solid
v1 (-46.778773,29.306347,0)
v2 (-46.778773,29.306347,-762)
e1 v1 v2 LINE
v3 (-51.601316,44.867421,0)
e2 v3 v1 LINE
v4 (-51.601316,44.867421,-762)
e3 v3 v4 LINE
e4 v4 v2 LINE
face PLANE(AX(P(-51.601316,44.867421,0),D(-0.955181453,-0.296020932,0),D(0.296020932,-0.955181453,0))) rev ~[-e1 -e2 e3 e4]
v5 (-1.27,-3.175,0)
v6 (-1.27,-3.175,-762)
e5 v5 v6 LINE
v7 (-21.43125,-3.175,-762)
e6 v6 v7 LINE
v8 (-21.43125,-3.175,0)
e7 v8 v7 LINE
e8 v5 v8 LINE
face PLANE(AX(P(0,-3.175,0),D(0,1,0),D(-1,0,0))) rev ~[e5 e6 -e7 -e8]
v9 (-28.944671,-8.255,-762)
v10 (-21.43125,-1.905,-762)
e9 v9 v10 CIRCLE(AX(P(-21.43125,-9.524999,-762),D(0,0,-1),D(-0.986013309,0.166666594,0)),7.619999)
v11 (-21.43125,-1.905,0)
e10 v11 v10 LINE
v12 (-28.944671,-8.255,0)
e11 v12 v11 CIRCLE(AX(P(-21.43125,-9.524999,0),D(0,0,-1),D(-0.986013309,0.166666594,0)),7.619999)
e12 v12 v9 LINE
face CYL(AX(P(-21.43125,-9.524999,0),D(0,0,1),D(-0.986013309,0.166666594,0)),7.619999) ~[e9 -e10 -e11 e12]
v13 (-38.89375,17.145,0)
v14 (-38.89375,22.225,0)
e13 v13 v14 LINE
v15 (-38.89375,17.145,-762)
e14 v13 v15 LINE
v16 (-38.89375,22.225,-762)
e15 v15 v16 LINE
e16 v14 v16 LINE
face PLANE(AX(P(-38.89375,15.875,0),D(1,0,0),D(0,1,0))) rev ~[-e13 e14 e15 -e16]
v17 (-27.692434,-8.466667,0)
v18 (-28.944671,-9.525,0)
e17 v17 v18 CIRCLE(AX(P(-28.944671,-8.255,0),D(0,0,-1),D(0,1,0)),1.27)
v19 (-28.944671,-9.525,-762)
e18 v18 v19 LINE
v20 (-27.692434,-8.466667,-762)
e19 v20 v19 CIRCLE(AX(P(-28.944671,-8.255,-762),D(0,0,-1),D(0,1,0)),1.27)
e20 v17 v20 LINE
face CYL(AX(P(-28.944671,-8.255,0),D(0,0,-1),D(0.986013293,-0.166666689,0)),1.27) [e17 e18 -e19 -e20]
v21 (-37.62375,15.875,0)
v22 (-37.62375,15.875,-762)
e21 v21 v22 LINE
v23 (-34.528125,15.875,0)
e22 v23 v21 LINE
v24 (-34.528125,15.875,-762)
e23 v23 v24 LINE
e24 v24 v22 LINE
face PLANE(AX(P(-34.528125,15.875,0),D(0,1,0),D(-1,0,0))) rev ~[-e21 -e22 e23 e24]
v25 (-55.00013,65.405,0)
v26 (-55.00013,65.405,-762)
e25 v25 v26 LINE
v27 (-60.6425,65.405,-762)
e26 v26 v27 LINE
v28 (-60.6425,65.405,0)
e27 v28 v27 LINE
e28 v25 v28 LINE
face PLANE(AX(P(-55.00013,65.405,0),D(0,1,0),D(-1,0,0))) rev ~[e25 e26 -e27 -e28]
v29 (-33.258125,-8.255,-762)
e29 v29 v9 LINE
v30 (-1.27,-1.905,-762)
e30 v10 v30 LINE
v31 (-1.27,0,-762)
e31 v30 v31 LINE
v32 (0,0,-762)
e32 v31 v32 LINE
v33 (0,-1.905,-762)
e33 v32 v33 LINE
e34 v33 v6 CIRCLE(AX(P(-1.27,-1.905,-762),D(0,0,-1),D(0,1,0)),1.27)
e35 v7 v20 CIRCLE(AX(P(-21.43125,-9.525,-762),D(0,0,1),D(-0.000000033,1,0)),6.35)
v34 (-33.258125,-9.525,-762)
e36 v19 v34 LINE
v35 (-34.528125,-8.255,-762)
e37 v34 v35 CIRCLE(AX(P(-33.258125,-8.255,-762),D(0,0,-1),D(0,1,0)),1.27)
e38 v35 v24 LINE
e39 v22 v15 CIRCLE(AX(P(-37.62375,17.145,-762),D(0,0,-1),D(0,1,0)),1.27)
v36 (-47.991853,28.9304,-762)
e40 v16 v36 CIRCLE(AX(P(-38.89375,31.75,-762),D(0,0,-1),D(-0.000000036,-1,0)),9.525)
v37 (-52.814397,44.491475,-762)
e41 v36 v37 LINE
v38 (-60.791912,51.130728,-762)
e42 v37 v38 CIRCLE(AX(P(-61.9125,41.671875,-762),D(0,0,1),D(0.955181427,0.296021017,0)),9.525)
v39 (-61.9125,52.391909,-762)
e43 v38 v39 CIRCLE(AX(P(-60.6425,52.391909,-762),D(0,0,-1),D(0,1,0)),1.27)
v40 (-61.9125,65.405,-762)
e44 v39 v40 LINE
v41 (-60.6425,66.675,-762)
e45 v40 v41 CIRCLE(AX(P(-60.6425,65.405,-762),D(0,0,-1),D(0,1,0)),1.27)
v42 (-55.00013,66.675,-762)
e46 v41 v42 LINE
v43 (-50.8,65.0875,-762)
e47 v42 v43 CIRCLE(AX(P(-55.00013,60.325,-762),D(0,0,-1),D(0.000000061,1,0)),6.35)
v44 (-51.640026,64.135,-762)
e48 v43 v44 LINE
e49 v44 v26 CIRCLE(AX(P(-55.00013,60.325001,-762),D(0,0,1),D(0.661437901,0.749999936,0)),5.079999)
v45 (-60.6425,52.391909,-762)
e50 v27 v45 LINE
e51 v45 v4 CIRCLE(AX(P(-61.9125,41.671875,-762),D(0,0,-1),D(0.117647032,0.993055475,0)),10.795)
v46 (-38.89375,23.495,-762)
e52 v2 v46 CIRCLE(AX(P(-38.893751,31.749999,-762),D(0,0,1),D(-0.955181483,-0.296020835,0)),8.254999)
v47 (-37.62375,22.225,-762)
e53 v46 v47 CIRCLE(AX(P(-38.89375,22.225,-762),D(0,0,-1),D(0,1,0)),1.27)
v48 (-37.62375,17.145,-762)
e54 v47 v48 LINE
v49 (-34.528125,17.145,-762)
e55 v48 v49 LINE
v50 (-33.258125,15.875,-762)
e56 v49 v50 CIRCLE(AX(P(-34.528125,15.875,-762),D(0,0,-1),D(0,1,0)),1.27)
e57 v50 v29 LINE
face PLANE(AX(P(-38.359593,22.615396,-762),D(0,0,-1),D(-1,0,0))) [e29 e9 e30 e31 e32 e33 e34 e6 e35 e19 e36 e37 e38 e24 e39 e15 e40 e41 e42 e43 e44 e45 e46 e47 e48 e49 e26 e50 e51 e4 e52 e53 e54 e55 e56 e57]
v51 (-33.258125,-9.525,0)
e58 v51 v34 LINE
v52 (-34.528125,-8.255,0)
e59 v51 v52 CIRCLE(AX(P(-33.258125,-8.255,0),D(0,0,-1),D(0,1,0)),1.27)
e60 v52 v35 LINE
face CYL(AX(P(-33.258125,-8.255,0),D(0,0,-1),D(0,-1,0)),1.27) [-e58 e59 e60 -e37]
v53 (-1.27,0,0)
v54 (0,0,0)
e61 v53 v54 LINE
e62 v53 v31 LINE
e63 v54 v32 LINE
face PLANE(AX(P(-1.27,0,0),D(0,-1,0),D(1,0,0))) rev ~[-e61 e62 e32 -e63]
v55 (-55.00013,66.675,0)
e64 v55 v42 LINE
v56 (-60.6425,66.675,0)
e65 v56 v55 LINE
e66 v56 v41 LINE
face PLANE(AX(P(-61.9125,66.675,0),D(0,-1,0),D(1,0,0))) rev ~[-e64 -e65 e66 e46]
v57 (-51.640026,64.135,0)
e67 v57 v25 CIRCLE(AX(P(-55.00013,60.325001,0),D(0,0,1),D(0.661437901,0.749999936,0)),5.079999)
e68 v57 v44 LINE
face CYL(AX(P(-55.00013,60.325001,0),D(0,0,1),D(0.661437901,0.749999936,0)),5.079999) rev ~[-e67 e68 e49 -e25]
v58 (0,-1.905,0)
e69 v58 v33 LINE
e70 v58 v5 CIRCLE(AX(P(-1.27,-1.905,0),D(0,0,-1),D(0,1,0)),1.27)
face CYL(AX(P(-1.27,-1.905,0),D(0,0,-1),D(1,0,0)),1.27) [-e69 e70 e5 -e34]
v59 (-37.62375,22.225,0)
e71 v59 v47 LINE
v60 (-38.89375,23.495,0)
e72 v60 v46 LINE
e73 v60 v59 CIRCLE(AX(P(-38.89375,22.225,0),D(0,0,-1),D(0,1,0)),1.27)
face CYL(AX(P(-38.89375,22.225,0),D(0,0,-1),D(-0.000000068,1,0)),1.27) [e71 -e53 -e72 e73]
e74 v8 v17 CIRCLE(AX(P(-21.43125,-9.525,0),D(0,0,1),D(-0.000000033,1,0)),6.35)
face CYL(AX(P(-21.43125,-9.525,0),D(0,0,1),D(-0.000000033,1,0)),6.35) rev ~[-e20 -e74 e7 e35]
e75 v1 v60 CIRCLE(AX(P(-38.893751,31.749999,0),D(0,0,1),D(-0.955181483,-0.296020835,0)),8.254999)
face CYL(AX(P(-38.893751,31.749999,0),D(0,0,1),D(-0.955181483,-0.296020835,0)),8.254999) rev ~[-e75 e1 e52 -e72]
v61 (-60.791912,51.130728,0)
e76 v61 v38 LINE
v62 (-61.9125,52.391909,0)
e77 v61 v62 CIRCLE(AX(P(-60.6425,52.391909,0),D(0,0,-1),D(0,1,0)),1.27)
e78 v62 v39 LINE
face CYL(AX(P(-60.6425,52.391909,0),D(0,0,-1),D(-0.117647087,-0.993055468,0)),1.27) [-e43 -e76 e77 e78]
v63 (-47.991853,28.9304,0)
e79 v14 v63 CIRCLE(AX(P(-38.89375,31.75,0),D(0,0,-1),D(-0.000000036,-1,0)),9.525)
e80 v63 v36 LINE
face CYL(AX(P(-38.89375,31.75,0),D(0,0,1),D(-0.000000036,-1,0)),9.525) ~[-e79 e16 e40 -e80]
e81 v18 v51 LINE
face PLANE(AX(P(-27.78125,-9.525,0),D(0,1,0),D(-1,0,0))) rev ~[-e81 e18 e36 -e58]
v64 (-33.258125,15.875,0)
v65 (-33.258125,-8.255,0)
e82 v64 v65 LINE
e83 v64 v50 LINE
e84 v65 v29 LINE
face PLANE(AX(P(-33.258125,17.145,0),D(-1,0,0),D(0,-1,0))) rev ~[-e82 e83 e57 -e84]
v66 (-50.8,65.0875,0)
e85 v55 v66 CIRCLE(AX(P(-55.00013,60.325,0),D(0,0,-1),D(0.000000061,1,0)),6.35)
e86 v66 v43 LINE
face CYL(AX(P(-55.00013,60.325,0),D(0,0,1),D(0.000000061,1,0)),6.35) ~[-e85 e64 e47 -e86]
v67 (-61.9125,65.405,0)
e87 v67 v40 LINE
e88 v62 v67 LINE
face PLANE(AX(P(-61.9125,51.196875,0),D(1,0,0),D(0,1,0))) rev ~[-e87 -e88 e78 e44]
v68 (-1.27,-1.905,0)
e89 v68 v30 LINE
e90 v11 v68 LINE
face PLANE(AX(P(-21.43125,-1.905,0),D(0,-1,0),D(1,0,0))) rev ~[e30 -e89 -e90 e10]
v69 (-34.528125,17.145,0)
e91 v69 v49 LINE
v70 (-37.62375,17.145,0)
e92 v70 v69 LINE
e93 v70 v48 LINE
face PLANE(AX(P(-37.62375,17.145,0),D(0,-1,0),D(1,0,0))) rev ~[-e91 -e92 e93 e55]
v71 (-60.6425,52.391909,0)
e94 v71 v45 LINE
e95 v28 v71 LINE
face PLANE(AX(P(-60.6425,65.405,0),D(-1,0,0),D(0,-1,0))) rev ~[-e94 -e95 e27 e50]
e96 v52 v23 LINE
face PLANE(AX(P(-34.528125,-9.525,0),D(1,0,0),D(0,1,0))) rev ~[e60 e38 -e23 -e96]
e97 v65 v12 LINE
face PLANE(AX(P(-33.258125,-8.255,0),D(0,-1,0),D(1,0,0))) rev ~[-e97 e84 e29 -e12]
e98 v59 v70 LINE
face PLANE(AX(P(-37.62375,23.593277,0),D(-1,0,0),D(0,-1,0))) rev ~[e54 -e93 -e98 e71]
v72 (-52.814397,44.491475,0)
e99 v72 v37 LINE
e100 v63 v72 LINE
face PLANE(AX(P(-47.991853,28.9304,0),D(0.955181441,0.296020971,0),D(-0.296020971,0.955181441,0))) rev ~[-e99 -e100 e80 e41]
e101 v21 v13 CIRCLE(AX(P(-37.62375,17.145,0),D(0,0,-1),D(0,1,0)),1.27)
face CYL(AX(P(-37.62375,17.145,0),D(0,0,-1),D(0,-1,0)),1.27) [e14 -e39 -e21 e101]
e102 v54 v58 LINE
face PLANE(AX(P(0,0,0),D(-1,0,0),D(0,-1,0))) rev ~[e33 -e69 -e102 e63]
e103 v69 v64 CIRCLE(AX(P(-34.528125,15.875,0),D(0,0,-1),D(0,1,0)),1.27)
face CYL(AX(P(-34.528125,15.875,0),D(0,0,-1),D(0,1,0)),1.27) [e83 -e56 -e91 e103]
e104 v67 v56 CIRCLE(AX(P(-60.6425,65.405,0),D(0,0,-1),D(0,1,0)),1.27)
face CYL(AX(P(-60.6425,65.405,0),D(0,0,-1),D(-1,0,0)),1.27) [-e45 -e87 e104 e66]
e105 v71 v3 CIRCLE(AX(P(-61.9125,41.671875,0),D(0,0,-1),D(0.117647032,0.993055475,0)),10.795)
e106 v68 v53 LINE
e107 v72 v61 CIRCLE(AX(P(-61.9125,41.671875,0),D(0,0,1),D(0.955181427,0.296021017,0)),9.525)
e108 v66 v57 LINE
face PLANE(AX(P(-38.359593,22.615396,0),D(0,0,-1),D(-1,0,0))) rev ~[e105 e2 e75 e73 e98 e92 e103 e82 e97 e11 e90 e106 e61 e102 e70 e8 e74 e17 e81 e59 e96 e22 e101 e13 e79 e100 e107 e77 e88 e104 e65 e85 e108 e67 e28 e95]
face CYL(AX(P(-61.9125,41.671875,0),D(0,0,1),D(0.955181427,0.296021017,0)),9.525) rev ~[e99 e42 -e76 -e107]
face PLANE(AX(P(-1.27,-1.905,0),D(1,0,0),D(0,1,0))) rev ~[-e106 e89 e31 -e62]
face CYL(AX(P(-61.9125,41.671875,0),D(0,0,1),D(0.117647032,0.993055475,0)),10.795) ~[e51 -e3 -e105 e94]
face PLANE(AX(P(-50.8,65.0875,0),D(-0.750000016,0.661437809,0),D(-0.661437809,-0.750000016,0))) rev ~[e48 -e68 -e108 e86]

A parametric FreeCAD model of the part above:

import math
import FreeCAD as App
import Part
import Sketcher

V = App.Vector
Q = App.Units.Quantity


def edges_at(feature, points):
    """Names of the edges that pass closest to the given points."""
    edges = feature.Shape.Edges
    near = lambda p: min(range(len(edges)), key=lambda i: edges[i].distToShape(Part.Vertex(*p))[0])
    return sorted({f"Edge{near(p) + 1}" for p in points})

doc = App.newDocument("Part")
body = doc.addObject("PartDesign::Body", "Body")

# Sketch on XY plane
sketch1 = doc.addObject("Sketcher::SketchObject", "Sketch")
body.addObject(sketch1)
sketch1.AttachmentSupport = (doc.XY_Plane, [""])
sketch1.MapMode = "FlatFace"
sketch1.addGeometry([
    Part.LineSegment(V(0, -3.175, 0), V(0, 0, 0)),  # 0
    Part.LineSegment(V(0, 0, 0), V(-1.27, 0, 0)),  # 1
    Part.LineSegment(V(-1.27, 0, 0), V(-1.27, -1.905, 0)),  # 2
    Part.LineSegment(V(-1.27, -1.905, 0), V(-21.43125, -1.905, 0)),  # 3
    Part.ArcOfCircle(Part.Circle(V(-21.43125, -9.524999, 0), V(0, 0, 1), 7.619999), math.radians(89.999998), math.radians(170.405936)),  # 4
    Part.LineSegment(V(-28.944671, -8.255, 0), V(-33.258125, -8.255, 0)),  # 5
    Part.LineSegment(V(-33.258125, -8.255, 0), V(-33.258125, 17.145, 0)),  # 6
    Part.LineSegment(V(-33.258125, 17.145, 0), V(-37.62375, 17.145, 0)),  # 7
    Part.LineSegment(V(-37.62375, 17.145, 0), V(-37.62375, 23.593277, 0)),  # 8
    Part.ArcOfCircle(Part.Circle(V(-38.893751, 31.749999, 0), V(0, 0, 1), 8.254999), math.radians(-162.781239), math.radians(-81.150111)),  # 9
    Part.LineSegment(V(-46.778773, 29.306347, 0), V(-51.601316, 44.867421, 0)),  # 10
    Part.ArcOfCircle(Part.Circle(V(-61.9125, 41.671875, 0), V(0, 0, 1), 10.795), math.radians(17.218766), math.radians(83.243675)),  # 11
    Part.LineSegment(V(-60.6425, 52.391909, 0), V(-60.6425, 65.405, 0)),  # 12
    Part.LineSegment(V(-60.6425, 65.405, 0), V(-55.00013, 65.405, 0)),  # 13
    Part.ArcOfCircle(Part.Circle(V(-55.00013, 60.325001, 0), V(0, 0, 1), 5.079999), math.radians(48.590372), math.radians(90.000004)),  # 14
    Part.LineSegment(V(-51.640026, 64.135, 0), V(-50.8, 65.0875, 0)),  # 15
    Part.ArcOfCircle(Part.Circle(V(-55.00013, 60.325, 0), V(0, 0, 1), 6.35), math.radians(48.59038), math.radians(89.999997)),  # 16
    Part.LineSegment(V(-55.00013, 66.675, 0), V(-61.9125, 66.675, 0)),  # 17
    Part.LineSegment(V(-61.9125, 66.675, 0), V(-61.9125, 51.196875, 0)),  # 18
    Part.ArcOfCircle(Part.Circle(V(-61.9125, 41.671875, 0), V(0, 0, 1), 9.525), math.radians(17.218772), math.radians(89.999998)),  # 19
    Part.LineSegment(V(-52.814397, 44.491475, 0), V(-47.991853, 28.9304, 0)),  # 20
    Part.ArcOfCircle(Part.Circle(V(-38.89375, 31.75, 0), V(0, 0, 1), 9.525), math.radians(-162.781228), math.radians(-90.000002)),  # 21
    Part.LineSegment(V(-38.89375, 22.225, 0), V(-38.89375, 15.875, 0)),  # 22
    Part.LineSegment(V(-38.89375, 15.875, 0), V(-34.528125, 15.875, 0)),  # 23
    Part.LineSegment(V(-34.528125, 15.875, 0), V(-34.528125, -9.525, 0)),  # 24
    Part.LineSegment(V(-34.528125, -9.525, 0), V(-27.78125, -9.525, 0)),  # 25
    Part.ArcOfCircle(Part.Circle(V(-21.43125, -9.525, 0), V(0, 0, 1), 6.35), math.radians(90.000002), math.radians(179.999998)),  # 26
    Part.LineSegment(V(-21.43125, -3.175, 0), V(0, -3.175, 0)),  # 27
], False)
sketch1.addConstraint([
    Sketcher.Constraint("Coincident", 0, 2, 1, 1),
    Sketcher.Constraint("Coincident", 1, 2, 2, 1),
    Sketcher.Constraint("Coincident", 2, 2, 3, 1),
    Sketcher.Constraint("Tangent", 3, 2, 4, 1),
    Sketcher.Constraint("Coincident", 4, 2, 5, 1),
    Sketcher.Constraint("Coincident", 5, 2, 6, 1),
    Sketcher.Constraint("Coincident", 6, 2, 7, 1),
    Sketcher.Constraint("Coincident", 7, 2, 8, 1),
    Sketcher.Constraint("Coincident", 8, 2, 9, 2),
    Sketcher.Constraint("Tangent", 9, 1, 10, 1),
    Sketcher.Constraint("Tangent", 10, 2, 11, 1),
    Sketcher.Constraint("Coincident", 11, 2, 12, 1),
    Sketcher.Constraint("Coincident", 12, 2, 13, 1),
    Sketcher.Constraint("Tangent", 13, 2, 14, 2),
    Sketcher.Constraint("Coincident", 14, 1, 15, 1),
    Sketcher.Constraint("Coincident", 15, 2, 16, 1),
    Sketcher.Constraint("Tangent", 16, 2, 17, 1),
    Sketcher.Constraint("Coincident", 17, 2, 18, 1),
    Sketcher.Constraint("Coincident", 18, 2, 19, 2),
    Sketcher.Constraint("Tangent", 19, 1, 20, 1),
    Sketcher.Constraint("Tangent", 20, 2, 21, 1),
    Sketcher.Constraint("Coincident", 21, 2, 22, 1),
    Sketcher.Constraint("Coincident", 22, 2, 23, 1),
    Sketcher.Constraint("Coincident", 23, 2, 24, 1),
    Sketcher.Constraint("Coincident", 24, 2, 25, 1),
    Sketcher.Constraint("Coincident", 25, 2, 26, 2),
    Sketcher.Constraint("Tangent", 26, 1, 27, 1),
    Sketcher.Constraint("Coincident", 27, 2, 0, 1),
    Sketcher.Constraint("Vertical", 0),
    Sketcher.Constraint("Horizontal", 1),
    Sketcher.Constraint("Vertical", 2),
    Sketcher.Constraint("Horizontal", 3),
    Sketcher.Constraint("Horizontal", 5),
    Sketcher.Constraint("Vertical", 6),
    Sketcher.Constraint("Horizontal", 7),
    Sketcher.Constraint("Vertical", 8),
    Sketcher.Constraint("Vertical", 12),
    Sketcher.Constraint("Horizontal", 13),
    Sketcher.Constraint("Horizontal", 17),
    Sketcher.Constraint("Vertical", 18),
    Sketcher.Constraint("Vertical", 22),
    Sketcher.Constraint("Horizontal", 23),
    Sketcher.Constraint("Vertical", 24),
    Sketcher.Constraint("Horizontal", 25),
    Sketcher.Constraint("Horizontal", 27),
    Sketcher.Constraint("Coincident", 0, 2, -1, 1),
    Sketcher.Constraint("Coincident", 16, 3, 14, 3),
    Sketcher.Constraint("Coincident", 19, 3, 11, 3),
    Sketcher.Constraint("Coincident", 21, 3, 9, 3),
    Sketcher.Constraint("Coincident", 26, 3, 4, 3),
    Sketcher.Constraint("Equal", 19, 21),
    Sketcher.Constraint("Equal", 16, 26),
    Sketcher.Constraint("Parallel", 10, 20),
    Sketcher.Constraint("Horizontal", 26, 3, 24, 2),
    Sketcher.Constraint("Vertical", 19, 3, 17, 2),
    Sketcher.Constraint("Vertical", 9, 3, 21, 2),
    Sketcher.Constraint("Equal", 7, 23),
    Sketcher.Constraint("Equal", 6, 24),
    Sketcher.Constraint("Radius", 4, Q("0.3 in")),
    Sketcher.Constraint("Radius", 14, Q("0.1999999 in")),
    Sketcher.Constraint("DistanceY", 6, 1, 6, 2, Q("1 in")),
    Sketcher.Constraint("Radius", 16, Q("0.25 in")),
    Sketcher.Constraint("DistanceX", 15, 2, -1, 1, Q("2 in")),
    Sketcher.Constraint("Radius", 9, Q("0.325 in")),
    Sketcher.Constraint("Radius", 11, Q("0.425 in")),
    Sketcher.Constraint("DistanceX", 1, 2, 1, 1, Q("0.05 in")),
    Sketcher.Constraint("DistanceY", 22, 2, 22, 1, Q("0.25 in")),
    Sketcher.Constraint("DistanceY", 14, 1, 16, 2, Q("0.1 in")),
    Sketcher.Constraint("DistanceY", 7, 2, 21, 2, Q("0.2 in")),
    Sketcher.Constraint("DistanceX", 7, 2, 7, 1, Q("0.171875 in")),
    Sketcher.Constraint("DistanceX", 25, 1, 25, 2, Q("0.265625 in")),
    Sketcher.Constraint("DistanceX", 27, 1, 27, 2, Q("0.84375 in")),
    Sketcher.Constraint("DistanceY", 0, 1, 0, 2, Q("0.125 in")),
    Sketcher.Constraint("DistanceY", 18, 2, 18, 1, Q("0.609375 in")),
    Sketcher.Constraint("DistanceY", 4, 3, 14, 3, Q("2.75 in")),
    Sketcher.Constraint("DistanceX", 9, 3, 7, 2, Q("0.05 in")),
    Sketcher.Constraint("DistanceX", 11, 3, 11, 2, Q("0.05 in")),
    Sketcher.Constraint("DistanceX", 11, 3, -1, 1, Q("2.4375 in")),
    Sketcher.Constraint("DistanceY", -1, 1, 15, 2, Q("2.5625 in")),
])
pad1 = doc.addObject("PartDesign::Pad", "Pad")
body.addObject(pad1)
pad1.Profile = sketch1
pad1.Length = Q("30 in")
pad1.Reversed = True
doc.recompute()

fillet = doc.addObject("PartDesign::Fillet", "Fillet")
body.addObject(fillet)
fillet.Base = (pad1, edges_at(pad1, [
    (-37.624, 23.593, -381),
    (-33.258, 17.145, -381),
    (0, -3.175, -381),
    (-27.781, -9.525, -381),
    (-34.528, -9.525, -381),
    (-38.894, 15.875, -381),
    (-61.913, 51.197, -381),
    (-61.913, 66.675, -381),
]))
fillet.Radius = Q("0.05 in")

doc.recompute()
